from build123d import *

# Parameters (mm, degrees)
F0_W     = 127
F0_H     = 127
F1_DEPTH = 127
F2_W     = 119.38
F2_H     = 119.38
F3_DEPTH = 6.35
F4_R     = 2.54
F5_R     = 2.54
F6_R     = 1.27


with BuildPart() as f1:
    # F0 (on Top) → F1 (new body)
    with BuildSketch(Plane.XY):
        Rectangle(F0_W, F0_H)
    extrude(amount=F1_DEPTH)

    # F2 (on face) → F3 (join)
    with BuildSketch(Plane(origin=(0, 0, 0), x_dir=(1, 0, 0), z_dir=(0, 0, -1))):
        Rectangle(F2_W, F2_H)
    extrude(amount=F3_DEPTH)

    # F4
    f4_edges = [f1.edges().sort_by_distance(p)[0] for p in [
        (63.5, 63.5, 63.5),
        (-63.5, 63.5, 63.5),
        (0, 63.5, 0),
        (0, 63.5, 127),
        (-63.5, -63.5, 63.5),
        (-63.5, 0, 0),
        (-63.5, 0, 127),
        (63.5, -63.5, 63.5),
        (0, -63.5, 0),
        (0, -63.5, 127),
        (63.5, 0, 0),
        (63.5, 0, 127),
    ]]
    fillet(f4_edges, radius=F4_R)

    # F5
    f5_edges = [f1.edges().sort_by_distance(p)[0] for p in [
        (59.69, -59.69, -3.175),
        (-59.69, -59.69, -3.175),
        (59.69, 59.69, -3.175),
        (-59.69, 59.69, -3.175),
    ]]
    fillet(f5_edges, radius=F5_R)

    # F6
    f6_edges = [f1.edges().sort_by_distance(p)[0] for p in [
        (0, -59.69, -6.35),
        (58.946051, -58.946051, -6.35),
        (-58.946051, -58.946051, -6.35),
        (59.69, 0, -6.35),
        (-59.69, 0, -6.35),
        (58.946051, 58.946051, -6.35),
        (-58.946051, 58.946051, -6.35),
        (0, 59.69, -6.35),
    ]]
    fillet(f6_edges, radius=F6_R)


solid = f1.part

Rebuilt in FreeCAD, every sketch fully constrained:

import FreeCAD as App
import Part
import Sketcher

V = App.Vector
Q = App.Units.Quantity


def edges_at(feature, points):
    """Names of the edges that pass closest to the given points."""
    edges = feature.Shape.Edges
    near = lambda p: min(range(len(edges)), key=lambda i: edges[i].distToShape(Part.Vertex(*p))[0])
    return sorted({f"Edge{near(p) + 1}" for p in points})

doc = App.newDocument("Part")
params = doc.addObject("Spreadsheet::Sheet", "Params")
for row, (alias, value) in enumerate([
    ("sketch1_width", "5 in"),
    ("pad1_length", "5 in"),
    ("sketch2_width", "4.7 in"),
    ("pad2_length", "0.25 in"),
    ("fillet_radius", "0.1 in"),
    ("fillet2_radius", "0.1 in"),
    ("fillet3_radius", "0.05 in"),
], start=1):
    params.set(f"A{row}", alias)
    params.set(f"B{row}", "=" + value)
    params.setAlias(f"B{row}", alias)

body = doc.addObject("PartDesign::Body", "Body")

# Sketch on XY plane
sketch1 = doc.addObject("Sketcher::SketchObject", "Sketch")
body.addObject(sketch1)
sketch1.AttachmentSupport = (doc.XY_Plane, [""])
sketch1.MapMode = "FlatFace"
sketch1.addGeometry(Part.LineSegment(V(-64, 64, 0), V(-64, -64, 0)), False)
sketch1.addGeometry(Part.LineSegment(V(-64, -64, 0), V(64, -64, 0)), False)
sketch1.addGeometry(Part.LineSegment(V(64, -64, 0), V(64, 64, 0)), False)
sketch1.addGeometry(Part.LineSegment(V(64, 64, 0), V(-64, 64, 0)), False)
sketch1.addConstraint(Sketcher.Constraint("Coincident", 0, 2, 1, 1))
sketch1.addConstraint(Sketcher.Constraint("Coincident", 1, 2, 2, 1))
sketch1.addConstraint(Sketcher.Constraint("Coincident", 2, 2, 3, 1))
sketch1.addConstraint(Sketcher.Constraint("Coincident", 3, 2, 0, 1))
sketch1.addConstraint(Sketcher.Constraint("Vertical", 0))
sketch1.addConstraint(Sketcher.Constraint("Horizontal", 1))
sketch1.addConstraint(Sketcher.Constraint("Vertical", 2))
sketch1.addConstraint(Sketcher.Constraint("Horizontal", 3))
sketch1.addConstraint(Sketcher.Constraint("Symmetric", 0, 2, 2, 2, -1, 1))
sketch1.addConstraint(Sketcher.Constraint("Equal", 3, 0))
sketch1.addConstraint(Sketcher.Constraint("DistanceX", 1, 1, 1, 2, Q("5 in")))
sketch1.setExpression("Constraints[10]", "Params.sketch1_width")
pad1 = doc.addObject("PartDesign::Pad", "Pad")
body.addObject(pad1)
pad1.Profile = sketch1
pad1.setExpression("Length", "Params.pad1_length")

# Sketch on XY plane
sketch2 = doc.addObject("Sketcher::SketchObject", "Sketch001")
body.addObject(sketch2)
sketch2.AttachmentSupport = (doc.XY_Plane, [""])
sketch2.MapMode = "FlatFace"
sketch2.addGeometry(Part.LineSegment(V(-60, -60, 0), V(-60, 60, 0)), False)
sketch2.addGeometry(Part.LineSegment(V(-60, 60, 0), V(60, 60, 0)), False)
sketch2.addGeometry(Part.LineSegment(V(60, 60, 0), V(60, -60, 0)), False)
sketch2.addGeometry(Part.LineSegment(V(60, -60, 0), V(-60, -60, 0)), False)
sketch2.addConstraint(Sketcher.Constraint("Coincident", 0, 2, 1, 1))
sketch2.addConstraint(Sketcher.Constraint("Coincident", 1, 2, 2, 1))
sketch2.addConstraint(Sketcher.Constraint("Coincident", 2, 2, 3, 1))
sketch2.addConstraint(Sketcher.Constraint("Coincident", 3, 2, 0, 1))
sketch2.addConstraint(Sketcher.Constraint("Vertical", 0))
sketch2.addConstraint(Sketcher.Constraint("Horizontal", 1))
sketch2.addConstraint(Sketcher.Constraint("Vertical", 2))
sketch2.addConstraint(Sketcher.Constraint("Horizontal", 3))
sketch2.addConstraint(Sketcher.Constraint("Symmetric", 0, 2, 2, 2, -1, 1))
sketch2.addConstraint(Sketcher.Constraint("Equal", 3, 0))
sketch2.addConstraint(Sketcher.Constraint("DistanceX", 1, 1, 1, 2, Q("4.7 in")))
sketch2.setExpression("Constraints[10]", "Params.sketch2_width")
pad2 = doc.addObject("PartDesign::Pad", "Pad001")
body.addObject(pad2)
pad2.Profile = sketch2
pad2.setExpression("Length", "Params.pad2_length")
pad2.Reversed = True
doc.recompute()

fillet = doc.addObject("PartDesign::Fillet", "Fillet")
body.addObject(fillet)
fillet.Base = (pad2, edges_at(pad2, [
    (63.5, 63.5, 63.5),
    (-63.5, 63.5, 63.5),
    (0, 63.5, 0),
    (0, 63.5, 127),
    (-63.5, -63.5, 63.5),
    (-63.5, 0, 0),
    (-63.5, 0, 127),
    (63.5, -63.5, 63.5),
    (0, -63.5, 0),
    (0, -63.5, 127),
    (63.5, 0, 0),
    (63.5, 0, 127),
]))
fillet.setExpression("Radius", "Params.fillet_radius")
doc.recompute()

fillet2 = doc.addObject("PartDesign::Fillet", "Fillet001")
body.addObject(fillet2)
fillet2.Base = (fillet, edges_at(fillet, [
    (59.69, -59.69, -3.175),
    (-59.69, -59.69, -3.175),
    (59.69, 59.69, -3.175),
    (-59.69, 59.69, -3.175),
]))
fillet2.setExpression("Radius", "Params.fillet2_radius")
doc.recompute()

fillet3 = doc.addObject("PartDesign::Fillet", "Fillet002")
body.addObject(fillet3)
fillet3.Base = (fillet2, edges_at(fillet2, [
    (0, -59.69, -6.35),
    (58.946, -58.946, -6.35),
    (-58.946, -58.946, -6.35),
    (59.69, 0, -6.35),
    (-59.69, 0, -6.35),
    (58.946, 58.946, -6.35),
    (-58.946, 58.946, -6.35),
    (0, 59.69, -6.35),
]))
fillet3.setExpression("Radius", "Params.fillet3_radius")

doc.recompute()
